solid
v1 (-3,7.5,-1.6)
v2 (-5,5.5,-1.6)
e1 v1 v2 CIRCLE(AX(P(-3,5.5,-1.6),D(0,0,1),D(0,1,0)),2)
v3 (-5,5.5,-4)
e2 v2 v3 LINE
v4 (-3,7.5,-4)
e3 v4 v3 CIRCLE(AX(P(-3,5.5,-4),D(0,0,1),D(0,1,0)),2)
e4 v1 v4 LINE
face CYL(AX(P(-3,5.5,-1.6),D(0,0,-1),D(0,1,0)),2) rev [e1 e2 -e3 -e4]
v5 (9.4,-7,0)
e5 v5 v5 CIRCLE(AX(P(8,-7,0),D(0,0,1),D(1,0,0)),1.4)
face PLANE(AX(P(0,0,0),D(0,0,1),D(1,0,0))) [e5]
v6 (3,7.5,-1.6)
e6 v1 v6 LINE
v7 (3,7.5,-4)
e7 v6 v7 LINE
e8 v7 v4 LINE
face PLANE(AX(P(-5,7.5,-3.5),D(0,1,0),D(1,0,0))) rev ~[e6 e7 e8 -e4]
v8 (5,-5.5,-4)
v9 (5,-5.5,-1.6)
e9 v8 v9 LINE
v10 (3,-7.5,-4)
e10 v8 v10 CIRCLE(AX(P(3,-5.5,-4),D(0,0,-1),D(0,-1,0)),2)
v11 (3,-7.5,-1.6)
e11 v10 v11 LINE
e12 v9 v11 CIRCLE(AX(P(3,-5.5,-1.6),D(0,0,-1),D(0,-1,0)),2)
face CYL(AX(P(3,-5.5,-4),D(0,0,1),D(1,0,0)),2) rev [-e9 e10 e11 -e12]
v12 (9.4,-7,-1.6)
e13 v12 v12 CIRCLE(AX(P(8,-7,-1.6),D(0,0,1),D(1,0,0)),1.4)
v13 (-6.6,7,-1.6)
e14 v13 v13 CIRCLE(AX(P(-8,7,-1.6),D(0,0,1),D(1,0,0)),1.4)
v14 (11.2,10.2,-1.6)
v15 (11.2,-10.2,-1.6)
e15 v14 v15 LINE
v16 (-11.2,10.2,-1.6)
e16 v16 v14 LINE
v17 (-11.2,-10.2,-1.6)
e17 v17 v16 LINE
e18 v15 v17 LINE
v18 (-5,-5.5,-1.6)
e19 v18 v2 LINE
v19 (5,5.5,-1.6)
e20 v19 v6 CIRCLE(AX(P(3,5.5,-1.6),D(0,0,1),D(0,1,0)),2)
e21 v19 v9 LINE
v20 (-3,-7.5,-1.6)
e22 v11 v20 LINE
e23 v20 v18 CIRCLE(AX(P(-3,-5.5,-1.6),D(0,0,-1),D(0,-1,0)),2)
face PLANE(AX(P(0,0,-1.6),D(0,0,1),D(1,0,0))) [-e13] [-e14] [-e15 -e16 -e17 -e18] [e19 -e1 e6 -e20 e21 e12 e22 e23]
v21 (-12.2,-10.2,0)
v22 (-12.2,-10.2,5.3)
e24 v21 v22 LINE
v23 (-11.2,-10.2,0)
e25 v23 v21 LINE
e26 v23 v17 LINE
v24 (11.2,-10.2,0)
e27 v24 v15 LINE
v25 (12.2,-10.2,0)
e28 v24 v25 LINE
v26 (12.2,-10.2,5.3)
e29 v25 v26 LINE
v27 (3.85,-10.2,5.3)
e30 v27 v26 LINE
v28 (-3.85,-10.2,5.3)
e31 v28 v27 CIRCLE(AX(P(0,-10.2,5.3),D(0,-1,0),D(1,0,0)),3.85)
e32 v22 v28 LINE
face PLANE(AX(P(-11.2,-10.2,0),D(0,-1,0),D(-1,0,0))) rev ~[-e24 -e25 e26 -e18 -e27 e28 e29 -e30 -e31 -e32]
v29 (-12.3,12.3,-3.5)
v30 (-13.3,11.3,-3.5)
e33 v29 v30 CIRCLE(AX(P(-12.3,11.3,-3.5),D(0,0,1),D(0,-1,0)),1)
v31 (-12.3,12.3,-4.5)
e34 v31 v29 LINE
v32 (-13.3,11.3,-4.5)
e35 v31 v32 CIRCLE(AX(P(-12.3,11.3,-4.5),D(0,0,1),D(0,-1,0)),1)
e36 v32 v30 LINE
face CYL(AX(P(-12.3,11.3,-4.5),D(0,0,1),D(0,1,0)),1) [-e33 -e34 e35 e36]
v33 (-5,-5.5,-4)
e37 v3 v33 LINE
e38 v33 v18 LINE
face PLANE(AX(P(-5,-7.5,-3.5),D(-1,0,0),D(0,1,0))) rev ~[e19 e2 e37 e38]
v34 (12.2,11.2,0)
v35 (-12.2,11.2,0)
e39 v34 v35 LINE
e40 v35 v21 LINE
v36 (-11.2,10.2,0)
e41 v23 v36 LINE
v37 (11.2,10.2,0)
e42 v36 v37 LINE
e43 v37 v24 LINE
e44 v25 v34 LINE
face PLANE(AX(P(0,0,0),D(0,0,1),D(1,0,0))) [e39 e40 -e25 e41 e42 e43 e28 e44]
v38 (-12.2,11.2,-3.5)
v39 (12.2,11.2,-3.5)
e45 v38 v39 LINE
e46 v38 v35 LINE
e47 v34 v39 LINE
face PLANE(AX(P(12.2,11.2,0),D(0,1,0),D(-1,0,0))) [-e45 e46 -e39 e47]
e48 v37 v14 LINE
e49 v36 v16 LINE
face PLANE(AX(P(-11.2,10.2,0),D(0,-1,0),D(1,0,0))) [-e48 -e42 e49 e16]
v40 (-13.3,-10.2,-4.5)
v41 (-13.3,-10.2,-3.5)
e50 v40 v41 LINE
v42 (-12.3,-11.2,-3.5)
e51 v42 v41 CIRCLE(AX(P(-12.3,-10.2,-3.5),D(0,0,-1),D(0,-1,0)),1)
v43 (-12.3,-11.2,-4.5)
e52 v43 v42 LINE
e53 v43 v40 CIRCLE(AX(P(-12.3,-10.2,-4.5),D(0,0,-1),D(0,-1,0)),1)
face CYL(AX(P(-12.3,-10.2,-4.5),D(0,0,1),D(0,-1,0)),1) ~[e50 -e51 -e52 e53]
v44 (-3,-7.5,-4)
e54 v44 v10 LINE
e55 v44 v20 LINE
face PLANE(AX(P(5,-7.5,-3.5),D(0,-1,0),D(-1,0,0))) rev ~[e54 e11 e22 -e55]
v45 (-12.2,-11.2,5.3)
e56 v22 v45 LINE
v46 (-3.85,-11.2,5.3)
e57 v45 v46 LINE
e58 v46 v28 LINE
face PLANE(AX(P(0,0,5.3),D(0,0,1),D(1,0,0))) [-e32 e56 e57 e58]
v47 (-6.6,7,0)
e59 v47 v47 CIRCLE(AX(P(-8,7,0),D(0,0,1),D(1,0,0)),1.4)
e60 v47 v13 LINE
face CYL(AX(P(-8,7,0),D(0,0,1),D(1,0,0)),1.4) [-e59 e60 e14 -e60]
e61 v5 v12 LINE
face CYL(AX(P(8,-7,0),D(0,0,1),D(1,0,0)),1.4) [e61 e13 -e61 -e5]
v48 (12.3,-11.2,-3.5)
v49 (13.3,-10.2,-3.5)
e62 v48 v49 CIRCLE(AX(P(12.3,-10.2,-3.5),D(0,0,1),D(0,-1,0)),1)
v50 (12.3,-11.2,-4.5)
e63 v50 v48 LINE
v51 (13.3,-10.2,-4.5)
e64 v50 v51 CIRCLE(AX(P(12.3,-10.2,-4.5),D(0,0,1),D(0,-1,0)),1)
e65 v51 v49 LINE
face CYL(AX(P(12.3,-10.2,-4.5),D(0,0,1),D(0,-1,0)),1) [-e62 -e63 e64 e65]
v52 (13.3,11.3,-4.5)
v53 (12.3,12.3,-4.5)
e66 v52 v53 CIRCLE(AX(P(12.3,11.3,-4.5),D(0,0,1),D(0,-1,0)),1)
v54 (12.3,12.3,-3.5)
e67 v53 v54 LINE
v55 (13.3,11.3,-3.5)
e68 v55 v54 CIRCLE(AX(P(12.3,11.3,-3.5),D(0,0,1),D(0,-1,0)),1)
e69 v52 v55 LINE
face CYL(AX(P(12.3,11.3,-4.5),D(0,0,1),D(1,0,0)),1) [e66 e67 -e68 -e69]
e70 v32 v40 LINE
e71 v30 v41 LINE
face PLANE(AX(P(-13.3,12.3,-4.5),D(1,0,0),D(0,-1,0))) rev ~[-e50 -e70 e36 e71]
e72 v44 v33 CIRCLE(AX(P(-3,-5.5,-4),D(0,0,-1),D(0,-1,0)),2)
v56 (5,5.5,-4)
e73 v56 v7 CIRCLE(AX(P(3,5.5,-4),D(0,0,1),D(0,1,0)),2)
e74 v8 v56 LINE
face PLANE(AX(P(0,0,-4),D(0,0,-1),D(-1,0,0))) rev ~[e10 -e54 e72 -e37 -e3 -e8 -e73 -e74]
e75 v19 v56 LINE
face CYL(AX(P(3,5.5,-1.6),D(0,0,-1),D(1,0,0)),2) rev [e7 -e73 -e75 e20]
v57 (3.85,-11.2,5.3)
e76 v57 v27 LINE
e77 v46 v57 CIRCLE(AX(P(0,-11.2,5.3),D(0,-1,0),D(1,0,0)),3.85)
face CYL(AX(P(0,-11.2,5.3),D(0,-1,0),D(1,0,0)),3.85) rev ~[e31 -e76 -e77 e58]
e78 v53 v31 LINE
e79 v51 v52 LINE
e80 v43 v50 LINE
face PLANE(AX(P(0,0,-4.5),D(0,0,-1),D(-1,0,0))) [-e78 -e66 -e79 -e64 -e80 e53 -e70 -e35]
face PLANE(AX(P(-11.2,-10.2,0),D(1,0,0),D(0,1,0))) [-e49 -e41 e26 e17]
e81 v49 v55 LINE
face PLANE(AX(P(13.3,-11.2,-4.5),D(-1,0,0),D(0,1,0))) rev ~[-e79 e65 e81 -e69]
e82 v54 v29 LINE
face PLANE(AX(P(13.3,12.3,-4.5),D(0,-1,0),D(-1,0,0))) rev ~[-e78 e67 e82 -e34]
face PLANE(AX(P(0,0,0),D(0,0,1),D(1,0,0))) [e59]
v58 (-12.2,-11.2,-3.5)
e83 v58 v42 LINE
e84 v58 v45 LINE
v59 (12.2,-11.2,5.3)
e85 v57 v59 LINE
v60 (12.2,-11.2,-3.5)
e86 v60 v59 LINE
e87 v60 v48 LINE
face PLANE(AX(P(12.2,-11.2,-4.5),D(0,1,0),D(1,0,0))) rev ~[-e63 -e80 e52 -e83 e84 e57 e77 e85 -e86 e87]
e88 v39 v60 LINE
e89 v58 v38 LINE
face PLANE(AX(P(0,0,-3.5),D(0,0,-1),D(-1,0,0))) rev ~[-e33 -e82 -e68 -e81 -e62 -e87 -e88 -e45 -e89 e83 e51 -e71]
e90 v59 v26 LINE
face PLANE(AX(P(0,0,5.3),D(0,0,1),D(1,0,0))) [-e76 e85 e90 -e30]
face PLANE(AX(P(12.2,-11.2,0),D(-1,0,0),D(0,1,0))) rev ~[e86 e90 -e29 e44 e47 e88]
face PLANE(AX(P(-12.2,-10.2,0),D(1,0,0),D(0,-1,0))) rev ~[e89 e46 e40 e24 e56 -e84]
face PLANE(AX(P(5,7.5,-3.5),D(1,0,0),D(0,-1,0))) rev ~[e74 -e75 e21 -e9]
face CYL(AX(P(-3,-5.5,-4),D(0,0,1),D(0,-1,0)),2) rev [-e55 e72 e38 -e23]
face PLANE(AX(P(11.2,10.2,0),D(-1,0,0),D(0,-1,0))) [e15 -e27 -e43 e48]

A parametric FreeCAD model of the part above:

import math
import FreeCAD as App
import Part
import Sketcher
Q = App.Units.Quantity


def edges_at(feature, points):
    """Names of the edges that pass closest to the given points."""
    edges = feature.Shape.Edges
    near = lambda p: min(range(len(edges)), key=lambda i: edges[i].distToShape(Part.Vertex(*p))[0])
    return sorted({f"Edge{near(p) + 1}" for p in points})

doc = App.newDocument("Part")
params = doc.addObject("Spreadsheet::Sheet", "Params")
for row, (alias, value) in enumerate([
    ("sketch1_diameter", "2.8 mm"),
    ("sketch1_width", "24.4 mm"),
    ("pad1_length", "4 mm"),
    ("sketch2_width", "10 mm"),
    ("sketch2_height", "15 mm"),
    ("sketch2_width2", "22.4 mm"),
    ("sketch2_height2", "20.4 mm"),
    ("pad2_length", "0.5 mm"),
    ("sketch3_width", "24.4 mm"),
    ("sketch3_height", "22.4 mm"),
    ("pad3_length", "0.5 mm"),
    ("sketch4_height", "1 mm"),
    ("sketch4_width", "24.4 mm"),
    ("pad4_length", "5.3 mm"),
    ("sketch5_radius", "3.85 mm"),
    ("pocket1_length", "5.3 mm"),
    ("sketch6_width", "1.1 mm"),
    ("sketch6_width2", "26.6 mm"),
    ("sketch6_height", "22.4 mm"),
    ("pad5_length", "1 mm"),
    ("sketch7_diameter", "2.8 mm"),
    ("sketch7_width", "10 mm"),
    ("sketch7_height", "15 mm"),
    ("sketch7_width2", "22.4 mm"),
    ("sketch7_height2", "20.4 mm"),
    ("pad6_length", "1.9 mm"),
    ("fillet_radius", "2 mm"),
    ("fillet2_radius", "1 mm"),
], start=1):
    params.set(f"A{row}", alias)
    params.set(f"B{row}", "=" + value)
    params.setAlias(f"B{row}", alias)

body = doc.addObject("PartDesign::Body", "Body")
body.AllowCompound = True

sketch1 = body.newObject("Sketcher::SketchObject", "Sketch")
sketch1.AttachmentSupport = (doc.getObject("XY_Plane"), [""])
sketch1.MapMode = "FlatFace"
sketch1.addGeometry([
    Part.Circle(App.Vector(-8, 7, 0), App.Vector(0, 0, 1), 1.4),
    Part.Circle(App.Vector(8, -7, 0), App.Vector(0, 0, 1), 1.4),
    Part.LineSegment(App.Vector(12.2, 11.2, 0), App.Vector(-12.2, 11.2, 0)),
    Part.LineSegment(App.Vector(-12.2, 11.2, 0), App.Vector(-12.2, -11.2, 0)),
    Part.LineSegment(App.Vector(-12.2, -11.2, 0), App.Vector(12.2, -11.2, 0)),
    Part.LineSegment(App.Vector(12.2, -11.2, 0), App.Vector(12.2, 11.2, 0)),
    Part.LineSegment(App.Vector(11.2, -10.2, 0), App.Vector(-11.2, -10.2, 0)),
    Part.LineSegment(App.Vector(-11.2, -10.2, 0), App.Vector(-11.2, 10.2, 0)),
    Part.LineSegment(App.Vector(-11.2, 10.2, 0), App.Vector(11.2, 10.2, 0)),
    Part.LineSegment(App.Vector(11.2, 10.2, 0), App.Vector(11.2, -10.2, 0)),
], False)
sketch1.addConstraint([
    Sketcher.Constraint("Coincident", 2, 2, 3, 1),
    Sketcher.Constraint("Coincident", 3, 2, 4, 1),
    Sketcher.Constraint("Coincident", 4, 2, 5, 1),
    Sketcher.Constraint("Coincident", 5, 2, 2, 1),
    Sketcher.Constraint("Coincident", 6, 2, 7, 1),
    Sketcher.Constraint("Coincident", 7, 2, 8, 1),
    Sketcher.Constraint("Coincident", 8, 2, 9, 1),
    Sketcher.Constraint("Coincident", 9, 2, 6, 1),
    Sketcher.Constraint("Horizontal", 2),
    Sketcher.Constraint("Vertical", 3),
    Sketcher.Constraint("Horizontal", 4),
    Sketcher.Constraint("Vertical", 5),
    Sketcher.Constraint("Horizontal", 6),
    Sketcher.Constraint("Vertical", 7),
    Sketcher.Constraint("Horizontal", 8),
    Sketcher.Constraint("Vertical", 9),
    Sketcher.Constraint("Equal", 0, 1),
    Sketcher.Constraint("Symmetric", 0, 3, 1, 3, -1, 1),
    Sketcher.Constraint("Symmetric", 2, 2, 4, 2, -1, 1),
    Sketcher.Constraint("Symmetric", 6, 2, 8, 2, -1, 1),
    Sketcher.Constraint("Equal", 8, 3),
    Sketcher.Constraint("DistanceX", 3, 2, 6, 2, Q("1 mm")),
    Sketcher.Constraint("DistanceY", 3, 2, 6, 2, Q("1 mm")),
    Sketcher.Constraint("Diameter", 0, Q("2.8 mm")),
    Sketcher.Constraint("DistanceX", 2, 2, 2, 1, Q("24.4 mm")),
    Sketcher.Constraint("DistanceX", 0, 3, -1, 1, Q("8 mm")),
    Sketcher.Constraint("DistanceY", -1, 1, 0, 3, Q("7 mm")),
])
sketch1.setExpression("Constraints[23]", "Params.sketch1_diameter")
sketch1.setExpression("Constraints[24]", "Params.sketch1_width")
pad1 = body.newObject("PartDesign::Pad", "Pad")
pad1.Profile = sketch1
pad1.setExpression("Length", "Params.pad1_length")
pad1.Reversed = True

sketch2 = body.newObject("Sketcher::SketchObject", "Sketch001")
sketch2.AttachmentSupport = (doc.getObject("XY_Plane"), [""])
sketch2.MapMode = "FlatFace"
sketch2.AttachmentOffset = App.Placement(App.Vector(0, 0, -4), App.Rotation())
sketch2.addGeometry([
    Part.LineSegment(App.Vector(-11, -10, 0), App.Vector(-11, 10, 0)),
    Part.LineSegment(App.Vector(-11, 10, 0), App.Vector(11, 10, 0)),
    Part.LineSegment(App.Vector(11, 10, 0), App.Vector(11, -10, 0)),
    Part.LineSegment(App.Vector(11, -10, 0), App.Vector(-11, -10, 0)),
    Part.LineSegment(App.Vector(-5, 8, 0), App.Vector(-5, -8, 0)),
    Part.LineSegment(App.Vector(-5, -8, 0), App.Vector(5, -8, 0)),
    Part.LineSegment(App.Vector(5, -8, 0), App.Vector(5, 8, 0)),
    Part.LineSegment(App.Vector(5, 8, 0), App.Vector(-5, 8, 0)),
], False)
sketch2.addConstraint([
    Sketcher.Constraint("Coincident", 0, 2, 1, 1),
    Sketcher.Constraint("Coincident", 1, 2, 2, 1),
    Sketcher.Constraint("Coincident", 2, 2, 3, 1),
    Sketcher.Constraint("Coincident", 3, 2, 0, 1),
    Sketcher.Constraint("Coincident", 4, 2, 5, 1),
    Sketcher.Constraint("Coincident", 5, 2, 6, 1),
    Sketcher.Constraint("Coincident", 6, 2, 7, 1),
    Sketcher.Constraint("Coincident", 7, 2, 4, 1),
    Sketcher.Constraint("Vertical", 0),
    Sketcher.Constraint("Horizontal", 1),
    Sketcher.Constraint("Vertical", 2),
    Sketcher.Constraint("Horizontal", 3),
    Sketcher.Constraint("Vertical", 4),
    Sketcher.Constraint("Horizontal", 5),
    Sketcher.Constraint("Vertical", 6),
    Sketcher.Constraint("Horizontal", 7),
    Sketcher.Constraint("Symmetric", 0, 2, 2, 2, -1, 1),
    Sketcher.Constraint("Symmetric", 4, 2, 6, 2, -1, 1),
    Sketcher.Constraint("DistanceX", 5, 1, 5, 2, Q("10 mm")),
    Sketcher.Constraint("DistanceY", 4, 2, 4, 1, Q("15 mm")),
    Sketcher.Constraint("DistanceX", 1, 1, 1, 2, Q("22.4 mm")),
    Sketcher.Constraint("DistanceY", 0, 1, 0, 2, Q("20.4 mm")),
])
sketch2.setExpression("Constraints[18]", "Params.sketch2_width")
sketch2.setExpression("Constraints[19]", "Params.sketch2_height")
sketch2.setExpression("Constraints[20]", "Params.sketch2_width2")
sketch2.setExpression("Constraints[21]", "Params.sketch2_height2")
pad2 = body.newObject("PartDesign::Pad", "Pad001")
pad2.Profile = sketch2
pad2.setExpression("Length", "Params.pad2_length")

sketch3 = body.newObject("Sketcher::SketchObject", "Sketch002")
sketch3.AttachmentSupport = (doc.getObject("XY_Plane"), [""])
sketch3.MapMode = "FlatFace"
sketch3.AttachmentOffset = App.Placement(App.Vector(0, 0, -4), App.Rotation())
sketch3.addGeometry([
    Part.LineSegment(App.Vector(12, 11, 0), App.Vector(12, -11, 0)),
    Part.LineSegment(App.Vector(12, -11, 0), App.Vector(-12, -11, 0)),
    Part.LineSegment(App.Vector(-12, -11, 0), App.Vector(-12, 11, 0)),
    Part.LineSegment(App.Vector(-12, 11, 0), App.Vector(12, 11, 0)),
], False)
sketch3.addConstraint([
    Sketcher.Constraint("Coincident", 0, 2, 1, 1),
    Sketcher.Constraint("Coincident", 1, 2, 2, 1),
    Sketcher.Constraint("Coincident", 2, 2, 3, 1),
    Sketcher.Constraint("Coincident", 3, 2, 0, 1),
    Sketcher.Constraint("Vertical", 0),
    Sketcher.Constraint("Horizontal", 1),
    Sketcher.Constraint("Vertical", 2),
    Sketcher.Constraint("Horizontal", 3),
    Sketcher.Constraint("Symmetric", 0, 2, 2, 2, -1, 1),
    Sketcher.Constraint("DistanceX", 1, 2, 1, 1, Q("24.4 mm")),
    Sketcher.Constraint("DistanceY", 0, 2, 0, 1, Q("22.4 mm")),
])
sketch3.setExpression("Constraints[9]", "Params.sketch3_width")
sketch3.setExpression("Constraints[10]", "Params.sketch3_height")
pad3 = body.newObject("PartDesign::Pad", "Pad002")
pad3.Profile = sketch3
pad3.setExpression("Length", "Params.pad3_length")
pad3.Reversed = True

sketch4 = body.newObject("Sketcher::SketchObject", "Sketch003")
sketch4.AttachmentSupport = (doc.getObject("XY_Plane"), [""])
sketch4.MapMode = "FlatFace"
sketch4.addGeometry([
    Part.LineSegment(App.Vector(-12.2, -10.2, 0), App.Vector(-12.2, -11.2, 0)),
    Part.LineSegment(App.Vector(-12.2, -11.2, 0), App.Vector(12.2, -11.2, 0)),
    Part.LineSegment(App.Vector(12.2, -11.2, 0), App.Vector(12.2, -10.2, 0)),
    Part.LineSegment(App.Vector(12.2, -10.2, 0), App.Vector(-12.2, -10.2, 0)),
], False)
sketch4.addConstraint([
    Sketcher.Constraint("Coincident", 0, 2, 1, 1),
    Sketcher.Constraint("Coincident", 1, 2, 2, 1),
    Sketcher.Constraint("Coincident", 2, 2, 3, 1),
    Sketcher.Constraint("Coincident", 3, 2, 0, 1),
    Sketcher.Constraint("Vertical", 0),
    Sketcher.Constraint("Horizontal", 1),
    Sketcher.Constraint("Vertical", 2),
    Sketcher.Constraint("Horizontal", 3),
    Sketcher.Constraint("DistanceY", 0, 2, 0, 1, Q("1 mm")),
    Sketcher.Constraint("DistanceX", 1, 1, 1, 2, Q("24.4 mm")),
    Sketcher.Constraint("DistanceX", 0, 2, -1, 1, Q("12.2 mm")),
    Sketcher.Constraint("DistanceY", 0, 2, -1, 1, Q("11.2 mm")),
])
sketch4.setExpression("Constraints[8]", "Params.sketch4_height")
sketch4.setExpression("Constraints[9]", "Params.sketch4_width")
pad4 = body.newObject("PartDesign::Pad", "Pad003")
pad4.Profile = sketch4
pad4.setExpression("Length", "Params.pad4_length")

sketch5 = body.newObject("Sketcher::SketchObject", "Sketch004")
sketch5.AttachmentSupport = (doc.getObject("XZ_Plane"), [""])
sketch5.MapMode = "FlatFace"
sketch5.AttachmentOffset = App.Placement(App.Vector(0, 0, 11.2), App.Rotation())
sketch5.addGeometry([
    Part.ArcOfCircle(Part.Circle(App.Vector(0, 5.3, 0), App.Vector(0, 0, 1), 3.9), math.radians(180), math.radians(360)),
    Part.LineSegment(App.Vector(3.9, 5.3, 0), App.Vector(-3.9, 5.3, 0)),
], False)
sketch5.addConstraint([
    Sketcher.Constraint("Coincident", 0, 1, 1, 2),
    Sketcher.Constraint("Coincident", 1, 1, 0, 2),
    Sketcher.Constraint("Horizontal", 1),
    Sketcher.Constraint("PointOnObject", 0, 3, -2),
    Sketcher.Constraint("Radius", 0, Q("3.85 mm")),
    Sketcher.Constraint("DistanceY", -1, 1, 0, 3, Q("5.3 mm")),
    Sketcher.Constraint("DistanceY", -1, 1, 0, 1, Q("5.3 mm")),
])
sketch5.setExpression("Constraints[4]", "Params.sketch5_radius")
pocket1 = body.newObject("PartDesign::Pocket", "Pocket")
pocket1.Profile = sketch5
pocket1.setExpression("Length", "Params.pocket1_length")

sketch6 = body.newObject("Sketcher::SketchObject", "Sketch005")
sketch6.AttachmentSupport = (doc.getObject("XY_Plane"), [""])
sketch6.MapMode = "FlatFace"
sketch6.AttachmentOffset = App.Placement(App.Vector(0, 0, -4.5), App.Rotation())
sketch6.addGeometry([
    Part.LineSegment(App.Vector(-12.2, 11.2, 0), App.Vector(-12.2, -11.2, 0)),
    Part.LineSegment(App.Vector(-12.2, -11.2, 0), App.Vector(-13.3, -11.2, 0)),
    Part.LineSegment(App.Vector(-13.3, -11.2, 0), App.Vector(-13.3, 12.3, 0)),
    Part.LineSegment(App.Vector(-13.3, 12.3, 0), App.Vector(13.3, 12.3, 0)),
    Part.LineSegment(App.Vector(13.3, 12.3, 0), App.Vector(13.3, -11.2, 0)),
    Part.LineSegment(App.Vector(13.3, -11.2, 0), App.Vector(12.2, -11.2, 0)),
    Part.LineSegment(App.Vector(12.2, -11.2, 0), App.Vector(12.2, 11.2, 0)),
    Part.LineSegment(App.Vector(12.2, 11.2, 0), App.Vector(-12.2, 11.2, 0)),
], False)
sketch6.addConstraint([
    Sketcher.Constraint("Coincident", 0, 2, 1, 1),
    Sketcher.Constraint("Coincident", 1, 2, 2, 1),
    Sketcher.Constraint("Coincident", 2, 2, 3, 1),
    Sketcher.Constraint("Coincident", 3, 2, 4, 1),
    Sketcher.Constraint("Coincident", 4, 2, 5, 1),
    Sketcher.Constraint("Coincident", 5, 2, 6, 1),
    Sketcher.Constraint("Coincident", 6, 2, 7, 1),
    Sketcher.Constraint("Coincident", 7, 2, 0, 1),
    Sketcher.Constraint("Vertical", 0),
    Sketcher.Constraint("Horizontal", 1),
    Sketcher.Constraint("Vertical", 2),
    Sketcher.Constraint("Horizontal", 3),
    Sketcher.Constraint("Vertical", 4),
    Sketcher.Constraint("Horizontal", 5),
    Sketcher.Constraint("Vertical", 6),
    Sketcher.Constraint("Horizontal", 7),
    Sketcher.Constraint("Symmetric", 0, 2, 6, 2, -1, 1),
    Sketcher.Constraint("Symmetric", 1, 2, 4, 2, -2),
    Sketcher.Constraint("DistanceX", 1, 2, 1, 1, Q("1.1 mm")),
    Sketcher.Constraint("DistanceY", 6, 2, 3, 2, Q("1.1 mm")),
    Sketcher.Constraint("DistanceX", 3, 1, 3, 2, Q("26.6 mm")),
    Sketcher.Constraint("DistanceY", 0, 2, 0, 1, Q("22.4 mm")),
])
sketch6.setExpression("Constraints[18]", "Params.sketch6_width")
sketch6.setExpression("Constraints[20]", "Params.sketch6_width2")
sketch6.setExpression("Constraints[21]", "Params.sketch6_height")
pad5 = body.newObject("PartDesign::Pad", "Pad004")
pad5.Profile = sketch6
pad5.setExpression("Length", "Params.pad5_length")

sketch7 = body.newObject("Sketcher::SketchObject", "Sketch006")
sketch7.AttachmentSupport = (doc.getObject("XY_Plane"), [""])
sketch7.MapMode = "FlatFace"
sketch7.AttachmentOffset = App.Placement(App.Vector(0, 0, -3.5), App.Rotation())
sketch7.addGeometry([
    Part.LineSegment(App.Vector(11.2, -10.2, 0), App.Vector(11.2, 10.2, 0)),
    Part.LineSegment(App.Vector(11.2, 10.2, 0), App.Vector(-11.2, 10.2, 0)),
    Part.LineSegment(App.Vector(-11.2, 10.2, 0), App.Vector(-11.2, -10.2, 0)),
    Part.LineSegment(App.Vector(-11.2, -10.2, 0), App.Vector(11.2, -10.2, 0)),
    Part.Circle(App.Vector(8, -7, 0), App.Vector(0, 0, 1), 1.4),
    Part.Circle(App.Vector(-8, 7, 0), App.Vector(0, 0, 1), 1.4),
    Part.LineSegment(App.Vector(5, 7.5, 0), App.Vector(5, -7.5, 0)),
    Part.LineSegment(App.Vector(5, -7.5, 0), App.Vector(-5, -7.5, 0)),
    Part.LineSegment(App.Vector(-5, -7.5, 0), App.Vector(-5, 7.5, 0)),
    Part.LineSegment(App.Vector(-5, 7.5, 0), App.Vector(5, 7.5, 0)),
], False)
sketch7.addConstraint([
    Sketcher.Constraint("Coincident", 0, 2, 1, 1),
    Sketcher.Constraint("Coincident", 1, 2, 2, 1),
    Sketcher.Constraint("Coincident", 2, 2, 3, 1),
    Sketcher.Constraint("Coincident", 3, 2, 0, 1),
    Sketcher.Constraint("Coincident", 6, 2, 7, 1),
    Sketcher.Constraint("Coincident", 7, 2, 8, 1),
    Sketcher.Constraint("Coincident", 8, 2, 9, 1),
    Sketcher.Constraint("Coincident", 9, 2, 6, 1),
    Sketcher.Constraint("Vertical", 0),
    Sketcher.Constraint("Horizontal", 1),
    Sketcher.Constraint("Vertical", 2),
    Sketcher.Constraint("Horizontal", 3),
    Sketcher.Constraint("Vertical", 6),
    Sketcher.Constraint("Horizontal", 7),
    Sketcher.Constraint("Vertical", 8),
    Sketcher.Constraint("Horizontal", 9),
    Sketcher.Constraint("Equal", 4, 5),
    Sketcher.Constraint("Symmetric", 4, 3, 5, 3, -1, 1),
    Sketcher.Constraint("Symmetric", 0, 2, 2, 2, -1, 1),
    Sketcher.Constraint("Symmetric", 6, 2, 8, 2, -1, 1),
    Sketcher.Constraint("Diameter", 4, Q("2.8 mm")),
    Sketcher.Constraint("DistanceX", 7, 2, 7, 1, Q("10 mm")),
    Sketcher.Constraint("DistanceY", 6, 2, 6, 1, Q("15 mm")),
    Sketcher.Constraint("DistanceX", 1, 2, 1, 1, Q("22.4 mm")),
    Sketcher.Constraint("DistanceY", 0, 1, 0, 2, Q("20.4 mm")),
    Sketcher.Constraint("DistanceX", -1, 1, 4, 3, Q("8 mm")),
    Sketcher.Constraint("DistanceY", 4, 3, -1, 1, Q("7 mm")),
])
sketch7.setExpression("Constraints[20]", "Params.sketch7_diameter")
sketch7.setExpression("Constraints[21]", "Params.sketch7_width")
sketch7.setExpression("Constraints[22]", "Params.sketch7_height")
sketch7.setExpression("Constraints[23]", "Params.sketch7_width2")
sketch7.setExpression("Constraints[24]", "Params.sketch7_height2")
pad6 = body.newObject("PartDesign::Pad", "Pad005")
pad6.Profile = sketch7
pad6.setExpression("Length", "Params.pad6_length")
doc.recompute()

fillet = body.newObject("PartDesign::Fillet", "Fillet")
fillet.Base = (pad6, edges_at(pad6, [
    (-5, 7.5, -2.8),
    (5, 7.5, -2.8),
    (-5, -7.5, -2.8),
    (5, -7.5, -2.8),
]))
fillet.setExpression("Radius", "Params.fillet_radius")
doc.recompute()

fillet2 = body.newObject("PartDesign::Fillet", "Fillet001")
fillet2.Base = (fillet, edges_at(fillet, [
    (13.3, 12.3, -4),
    (13.3, -11.2, -4),
    (-13.3, -11.2, -4),
    (-13.3, 12.3, -4),
]))
fillet2.setExpression("Radius", "Params.fillet2_radius")

doc.recompute()
